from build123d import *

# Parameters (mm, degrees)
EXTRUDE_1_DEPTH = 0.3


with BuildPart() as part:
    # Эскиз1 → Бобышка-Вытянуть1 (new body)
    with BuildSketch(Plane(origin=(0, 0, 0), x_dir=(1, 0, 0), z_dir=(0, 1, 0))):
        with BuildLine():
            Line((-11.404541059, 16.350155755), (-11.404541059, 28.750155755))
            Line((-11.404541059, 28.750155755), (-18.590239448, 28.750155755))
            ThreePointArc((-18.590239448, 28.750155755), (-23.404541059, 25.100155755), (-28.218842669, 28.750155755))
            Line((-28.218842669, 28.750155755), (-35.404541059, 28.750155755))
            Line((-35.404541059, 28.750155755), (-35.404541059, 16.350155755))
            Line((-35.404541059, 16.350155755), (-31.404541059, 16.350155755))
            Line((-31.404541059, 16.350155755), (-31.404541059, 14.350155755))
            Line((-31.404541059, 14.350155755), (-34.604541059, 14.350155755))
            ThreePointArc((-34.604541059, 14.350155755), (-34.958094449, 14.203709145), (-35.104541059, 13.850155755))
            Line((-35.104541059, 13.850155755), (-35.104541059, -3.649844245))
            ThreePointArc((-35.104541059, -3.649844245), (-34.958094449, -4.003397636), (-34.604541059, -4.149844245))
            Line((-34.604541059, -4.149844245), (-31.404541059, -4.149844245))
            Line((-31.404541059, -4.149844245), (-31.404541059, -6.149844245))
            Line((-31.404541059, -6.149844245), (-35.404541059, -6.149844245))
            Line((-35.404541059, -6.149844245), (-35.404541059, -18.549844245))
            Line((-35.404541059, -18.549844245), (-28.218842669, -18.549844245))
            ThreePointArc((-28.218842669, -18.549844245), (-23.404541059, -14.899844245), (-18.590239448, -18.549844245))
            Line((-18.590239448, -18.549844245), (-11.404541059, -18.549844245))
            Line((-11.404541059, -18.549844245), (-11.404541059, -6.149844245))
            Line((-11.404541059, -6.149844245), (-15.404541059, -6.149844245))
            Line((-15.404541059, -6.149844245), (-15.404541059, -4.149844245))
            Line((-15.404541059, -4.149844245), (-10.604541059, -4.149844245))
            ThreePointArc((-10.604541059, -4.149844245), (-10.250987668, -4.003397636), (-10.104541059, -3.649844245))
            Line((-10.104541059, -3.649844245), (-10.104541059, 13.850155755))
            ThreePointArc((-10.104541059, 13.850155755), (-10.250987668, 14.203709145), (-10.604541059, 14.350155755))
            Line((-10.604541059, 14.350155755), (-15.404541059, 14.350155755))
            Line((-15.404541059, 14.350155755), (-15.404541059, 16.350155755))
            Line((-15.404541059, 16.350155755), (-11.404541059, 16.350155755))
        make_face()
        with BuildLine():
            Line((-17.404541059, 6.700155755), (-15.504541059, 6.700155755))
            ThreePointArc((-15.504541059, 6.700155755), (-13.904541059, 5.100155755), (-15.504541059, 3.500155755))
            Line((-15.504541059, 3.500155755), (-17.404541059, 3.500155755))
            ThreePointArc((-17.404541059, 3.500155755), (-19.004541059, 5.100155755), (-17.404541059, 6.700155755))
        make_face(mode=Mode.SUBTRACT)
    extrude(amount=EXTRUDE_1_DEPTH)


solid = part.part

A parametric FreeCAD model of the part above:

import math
import FreeCAD as App
import Part
import Sketcher
from FreeCAD import Vector

doc = App.newDocument("Part")
params = doc.addObject("Spreadsheet::Sheet", "Params")
for row, (alias, value) in enumerate([
    ("sketch1_radius", "5 mm"),
    ("sketch1_radius2", "0.5 mm"),
    ("sketch1_radius3", "1.6 mm"),
    ("sketch1_width", "4 mm"),
    ("sketch1_height", "2 mm"),
    ("pad1_length", "0.3 mm"),
], start=1):
    params.set(f"A{row}", alias)
    params.set(f"B{row}", "=" + value)
    params.setAlias(f"B{row}", alias)

body = doc.addObject("PartDesign::Body", "Body")

sketch1 = body.newObject("Sketcher::SketchObject", "Sketch")
sketch1.AttachmentSupport = (doc.getObject("XZ_Plane"), [""])
sketch1.MapMode = "FlatFace"
sketch1.addGeometry(Part.LineSegment(Vector(-11.4, -16.35, 0), Vector(-11.4, -28.75, 0)), False)
sketch1.addGeometry(Part.LineSegment(Vector(-11.4, -28.75, 0), Vector(-18.59, -28.75, 0)), False)
sketch1.addGeometry(Part.ArcOfCircle(Part.Circle(Vector(-23.4, -30.1, 0), Vector(0, 0, 1), 5), math.radians(16), math.radians(164)), False)
sketch1.addGeometry(Part.LineSegment(Vector(-28.22, -28.75, 0), Vector(-35.4, -28.75, 0)), False)
sketch1.addGeometry(Part.LineSegment(Vector(-35.4, -28.75, 0), Vector(-35.4, -16.35, 0)), False)
sketch1.addGeometry(Part.LineSegment(Vector(-35.4, -16.35, 0), Vector(-31.4, -16.35, 0)), False)
sketch1.addGeometry(Part.LineSegment(Vector(-31.4, -16.35, 0), Vector(-31.4, -14.35, 0)), False)
sketch1.addGeometry(Part.LineSegment(Vector(-31.4, -14.35, 0), Vector(-34.6, -14.35, 0)), False)
sketch1.addGeometry(Part.ArcOfCircle(Part.Circle(Vector(-34.6, -13.85, 0), Vector(0, 0, 1), 0.5), math.radians(-180), math.radians(-90)), False)
sketch1.addGeometry(Part.LineSegment(Vector(-35.1, -13.85, 0), Vector(-35.1, 3.65, 0)), False)
sketch1.addGeometry(Part.ArcOfCircle(Part.Circle(Vector(-34.6, 3.65, 0), Vector(0, 0, 1), 0.5), math.radians(90), math.radians(180)), False)
sketch1.addGeometry(Part.LineSegment(Vector(-34.6, 4.15, 0), Vector(-31.4, 4.15, 0)), False)
sketch1.addGeometry(Part.LineSegment(Vector(-31.4, 4.15, 0), Vector(-31.4, 6.15, 0)), False)
sketch1.addGeometry(Part.LineSegment(Vector(-31.4, 6.15, 0), Vector(-35.4, 6.15, 0)), False)
sketch1.addGeometry(Part.LineSegment(Vector(-35.4, 6.15, 0), Vector(-35.4, 18.55, 0)), False)
sketch1.addGeometry(Part.LineSegment(Vector(-35.4, 18.55, 0), Vector(-28.22, 18.55, 0)), False)
sketch1.addGeometry(Part.ArcOfCircle(Part.Circle(Vector(-23.4, 19.9, 0), Vector(0, 0, 1), 5), math.radians(-164), math.radians(-16)), False)
sketch1.addGeometry(Part.LineSegment(Vector(-18.59, 18.55, 0), Vector(-11.4, 18.55, 0)), False)
sketch1.addGeometry(Part.LineSegment(Vector(-11.4, 18.55, 0), Vector(-11.4, 6.15, 0)), False)
sketch1.addGeometry(Part.LineSegment(Vector(-11.4, 6.15, 0), Vector(-15.4, 6.15, 0)), False)
sketch1.addGeometry(Part.LineSegment(Vector(-15.4, 6.15, 0), Vector(-15.4, 4.15, 0)), False)
sketch1.addGeometry(Part.LineSegment(Vector(-15.4, 4.15, 0), Vector(-10.6, 4.15, 0)), False)
sketch1.addGeometry(Part.ArcOfCircle(Part.Circle(Vector(-10.6, 3.65, 0), Vector(0, 0, 1), 0.5), math.radians(0), math.radians(90)), False)
sketch1.addGeometry(Part.LineSegment(Vector(-10.1, 3.65, 0), Vector(-10.1, -13.85, 0)), False)
sketch1.addGeometry(Part.ArcOfCircle(Part.Circle(Vector(-10.6, -13.85, 0), Vector(0, 0, 1), 0.5), math.radians(-90), math.radians(0)), False)
sketch1.addGeometry(Part.LineSegment(Vector(-10.6, -14.35, 0), Vector(-15.4, -14.35, 0)), False)
sketch1.addGeometry(Part.LineSegment(Vector(-15.4, -14.35, 0), Vector(-15.4, -16.35, 0)), False)
sketch1.addGeometry(Part.LineSegment(Vector(-15.4, -16.35, 0), Vector(-11.4, -16.35, 0)), False)
sketch1.addGeometry(Part.ArcOfCircle(Part.Circle(Vector(-17.4, -5.1, 0), Vector(0, 0, 1), 1.6), math.radians(90), math.radians(270)), False)
sketch1.addGeometry(Part.LineSegment(Vector(-17.4, -6.7, 0), Vector(-15.5, -6.7, 0)), False)
sketch1.addGeometry(Part.ArcOfCircle(Part.Circle(Vector(-15.5, -5.1, 0), Vector(0, 0, 1), 1.6), math.radians(-90), math.radians(90)), False)
sketch1.addGeometry(Part.LineSegment(Vector(-15.5, -3.5, 0), Vector(-17.4, -3.5, 0)), False)
sketch1.addConstraint(Sketcher.Constraint("Coincident", 0, 2, 1, 1))
sketch1.addConstraint(Sketcher.Constraint("Coincident", 1, 2, 2, 1))
sketch1.addConstraint(Sketcher.Constraint("Coincident", 2, 2, 3, 1))
sketch1.addConstraint(Sketcher.Constraint("Coincident", 3, 2, 4, 1))
sketch1.addConstraint(Sketcher.Constraint("Coincident", 4, 2, 5, 1))
sketch1.addConstraint(Sketcher.Constraint("Coincident", 5, 2, 6, 1))
sketch1.addConstraint(Sketcher.Constraint("Coincident", 6, 2, 7, 1))
sketch1.addConstraint(Sketcher.Constraint("Tangent", 7, 2, 8, 2))
sketch1.addConstraint(Sketcher.Constraint("Tangent", 8, 1, 9, 1))
sketch1.addConstraint(Sketcher.Constraint("Tangent", 9, 2, 10, 2))
sketch1.addConstraint(Sketcher.Constraint("Tangent", 10, 1, 11, 1))
sketch1.addConstraint(Sketcher.Constraint("Coincident", 11, 2, 12, 1))
sketch1.addConstraint(Sketcher.Constraint("Coincident", 12, 2, 13, 1))
sketch1.addConstraint(Sketcher.Constraint("Coincident", 13, 2, 14, 1))
sketch1.addConstraint(Sketcher.Constraint("Coincident", 14, 2, 15, 1))
sketch1.addConstraint(Sketcher.Constraint("Coincident", 15, 2, 16, 1))
sketch1.addConstraint(Sketcher.Constraint("Coincident", 16, 2, 17, 1))
sketch1.addConstraint(Sketcher.Constraint("Coincident", 17, 2, 18, 1))
sketch1.addConstraint(Sketcher.Constraint("Coincident", 18, 2, 19, 1))
sketch1.addConstraint(Sketcher.Constraint("Coincident", 19, 2, 20, 1))
sketch1.addConstraint(Sketcher.Constraint("Coincident", 20, 2, 21, 1))
sketch1.addConstraint(Sketcher.Constraint("Tangent", 21, 2, 22, 2))
sketch1.addConstraint(Sketcher.Constraint("Tangent", 22, 1, 23, 1))
sketch1.addConstraint(Sketcher.Constraint("Tangent", 23, 2, 24, 2))
sketch1.addConstraint(Sketcher.Constraint("Tangent", 24, 1, 25, 1))
sketch1.addConstraint(Sketcher.Constraint("Coincident", 25, 2, 26, 1))
sketch1.addConstraint(Sketcher.Constraint("Coincident", 26, 2, 27, 1))
sketch1.addConstraint(Sketcher.Constraint("Coincident", 27, 2, 0, 1))
sketch1.addConstraint(Sketcher.Constraint("Tangent", 28, 2, 29, 1))
sketch1.addConstraint(Sketcher.Constraint("Tangent", 29, 2, 30, 1))
sketch1.addConstraint(Sketcher.Constraint("Tangent", 30, 2, 31, 1))
sketch1.addConstraint(Sketcher.Constraint("Tangent", 31, 2, 28, 1))
sketch1.addConstraint(Sketcher.Constraint("Vertical", 0))
sketch1.addConstraint(Sketcher.Constraint("Horizontal", 1))
sketch1.addConstraint(Sketcher.Constraint("Horizontal", 3))
sketch1.addConstraint(Sketcher.Constraint("Vertical", 4))
sketch1.addConstraint(Sketcher.Constraint("Horizontal", 5))
sketch1.addConstraint(Sketcher.Constraint("Vertical", 6))
sketch1.addConstraint(Sketcher.Constraint("Horizontal", 7))
sketch1.addConstraint(Sketcher.Constraint("Vertical", 9))
sketch1.addConstraint(Sketcher.Constraint("Horizontal", 11))
sketch1.addConstraint(Sketcher.Constraint("Vertical", 12))
sketch1.addConstraint(Sketcher.Constraint("Horizontal", 13))
sketch1.addConstraint(Sketcher.Constraint("Vertical", 14))
sketch1.addConstraint(Sketcher.Constraint("Horizontal", 15))
sketch1.addConstraint(Sketcher.Constraint("Horizontal", 17))
sketch1.addConstraint(Sketcher.Constraint("Vertical", 18))
sketch1.addConstraint(Sketcher.Constraint("Horizontal", 19))
sketch1.addConstraint(Sketcher.Constraint("Vertical", 20))
sketch1.addConstraint(Sketcher.Constraint("Horizontal", 21))
sketch1.addConstraint(Sketcher.Constraint("Vertical", 23))
sketch1.addConstraint(Sketcher.Constraint("Horizontal", 25))
sketch1.addConstraint(Sketcher.Constraint("Vertical", 26))
sketch1.addConstraint(Sketcher.Constraint("Horizontal", 27))
sketch1.addConstraint(Sketcher.Constraint("Horizontal", 29))
sketch1.addConstraint(Sketcher.Constraint("Horizontal", 31))
sketch1.addConstraint(Sketcher.Constraint("Equal", 8, 10))
sketch1.addConstraint(Sketcher.Constraint("Equal", 2, 16))
sketch1.addConstraint(Sketcher.Constraint("Equal", 10, 22))
sketch1.addConstraint(Sketcher.Constraint("Equal", 22, 24))
sketch1.addConstraint(Sketcher.Constraint("Horizontal", 10, 3, 22, 3))
sketch1.addConstraint(Sketcher.Constraint("Horizontal", 8, 3, 24, 3))
sketch1.addConstraint(Sketcher.Constraint("Horizontal", 1, 2, 2, 2))
sketch1.addConstraint(Sketcher.Constraint("Horizontal", 15, 2, 16, 2))
sketch1.addConstraint(Sketcher.Constraint("Horizontal", 13, 2, 18, 2))
sketch1.addConstraint(Sketcher.Constraint("Horizontal", 5, 2, 26, 2))
sketch1.addConstraint(Sketcher.Constraint("Vertical", 2, 3, 16, 3))
sketch1.addConstraint(Sketcher.Constraint("Vertical", 6, 2, 11, 2))
sketch1.addConstraint(Sketcher.Constraint("Vertical", 4, 2, 13, 2))
sketch1.addConstraint(Sketcher.Constraint("Vertical", 2, 2, 15, 2))
sketch1.addConstraint(Sketcher.Constraint("Vertical", 0, 2, 17, 2))
sketch1.addConstraint(Sketcher.Constraint("Vertical", 20, 2, 25, 2))
sketch1.addConstraint(Sketcher.Constraint("Equal", 1, 3))
sketch1.addConstraint(Sketcher.Constraint("Equal", 13, 19))
sketch1.addConstraint(Sketcher.Constraint("Equal", 6, 12))
sketch1.addConstraint(Sketcher.Constraint("Equal", 4, 14))
sketch1.addConstraint(Sketcher.Constraint("Radius", 2, 5.0))
sketch1.addConstraint(Sketcher.Constraint("Radius", 8, 0.5))
sketch1.addConstraint(Sketcher.Constraint("Radius", 28, 1.6))
sketch1.addConstraint(Sketcher.Constraint("DistanceX", 5, 1, 5, 2, 4.0))
sketch1.addConstraint(Sketcher.Constraint("DistanceY", 6, 1, 6, 2, 2.0))
sketch1.addConstraint(Sketcher.Constraint("DistanceX", 7, 2, 7, 1, 3.2))
sketch1.addConstraint(Sketcher.Constraint("DistanceX", 21, 1, 21, 2, 4.8))
sketch1.addConstraint(Sketcher.Constraint("DistanceX", 29, 1, 29, 2, 1.9))
sketch1.addConstraint(Sketcher.Constraint("DistanceY", 0, 2, 0, 1, 12.4))
sketch1.addConstraint(Sketcher.Constraint("DistanceY", 9, 1, 9, 2, 17.5))
sketch1.addConstraint(Sketcher.Constraint("DistanceY", 2, 3, 16, 3, 50.0))
sketch1.addConstraint(Sketcher.Constraint("DistanceX", 10, 3, 22, 3, 24.0))
sketch1.addConstraint(Sketcher.Constraint("DistanceX", 2, 3, 28, 3, 6.0))
sketch1.addConstraint(Sketcher.Constraint("DistanceY", 2, 3, 28, 3, 25.0))
sketch1.addConstraint(Sketcher.Constraint("DistanceX", 2, 3, -1, 1, 23.404541))
sketch1.addConstraint(Sketcher.Constraint("DistanceY", 2, 3, -1, 1, 30.100156))
sketch1.setExpression("Constraints[76]", "Params.sketch1_radius")
sketch1.setExpression("Constraints[77]", "Params.sketch1_radius2")
sketch1.setExpression("Constraints[78]", "Params.sketch1_radius3")
sketch1.setExpression("Constraints[79]", "Params.sketch1_width")
sketch1.setExpression("Constraints[80]", "Params.sketch1_height")
pad1 = body.newObject("PartDesign::Pad", "Pad")
pad1.Profile = sketch1
pad1.setExpression("Length", "Params.pad1_length")
pad1.Reversed = True

doc.recompute()
